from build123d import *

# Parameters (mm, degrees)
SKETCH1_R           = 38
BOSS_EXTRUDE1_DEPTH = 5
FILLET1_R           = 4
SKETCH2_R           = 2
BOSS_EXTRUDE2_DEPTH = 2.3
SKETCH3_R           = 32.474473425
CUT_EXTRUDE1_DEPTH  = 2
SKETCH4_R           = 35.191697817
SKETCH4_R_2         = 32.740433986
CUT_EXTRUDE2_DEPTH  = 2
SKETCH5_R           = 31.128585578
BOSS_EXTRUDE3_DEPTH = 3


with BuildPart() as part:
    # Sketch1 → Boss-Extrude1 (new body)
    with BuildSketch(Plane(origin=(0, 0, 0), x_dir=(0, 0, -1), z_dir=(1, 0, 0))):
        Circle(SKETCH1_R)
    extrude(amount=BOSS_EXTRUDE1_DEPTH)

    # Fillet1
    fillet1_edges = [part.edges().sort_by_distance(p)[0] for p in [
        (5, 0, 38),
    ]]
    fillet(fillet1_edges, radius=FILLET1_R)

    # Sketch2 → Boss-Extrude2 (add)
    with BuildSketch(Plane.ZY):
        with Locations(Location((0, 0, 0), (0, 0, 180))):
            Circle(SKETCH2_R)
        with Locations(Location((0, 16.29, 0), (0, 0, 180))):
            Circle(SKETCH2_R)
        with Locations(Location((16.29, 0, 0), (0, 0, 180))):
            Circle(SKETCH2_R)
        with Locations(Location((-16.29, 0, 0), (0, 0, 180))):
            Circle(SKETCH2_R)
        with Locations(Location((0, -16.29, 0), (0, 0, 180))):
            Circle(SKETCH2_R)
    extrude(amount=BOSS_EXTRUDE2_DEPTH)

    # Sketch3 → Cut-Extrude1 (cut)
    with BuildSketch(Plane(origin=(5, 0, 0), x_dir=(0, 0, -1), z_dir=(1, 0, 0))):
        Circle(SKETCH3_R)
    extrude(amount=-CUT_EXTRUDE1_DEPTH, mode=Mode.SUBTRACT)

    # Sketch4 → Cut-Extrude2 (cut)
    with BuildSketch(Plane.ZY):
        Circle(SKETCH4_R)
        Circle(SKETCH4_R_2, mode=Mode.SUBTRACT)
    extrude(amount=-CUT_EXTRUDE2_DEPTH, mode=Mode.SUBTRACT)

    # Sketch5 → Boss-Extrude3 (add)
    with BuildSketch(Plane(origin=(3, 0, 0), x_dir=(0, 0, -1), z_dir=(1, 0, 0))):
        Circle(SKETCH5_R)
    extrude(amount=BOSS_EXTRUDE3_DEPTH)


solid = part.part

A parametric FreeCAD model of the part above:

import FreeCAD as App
import Part
import Sketcher
from FreeCAD import Vector


def edges_at(feature, points):
    """Names of the edges that pass closest to the given points."""
    edges = feature.Shape.Edges
    near = lambda p: min(range(len(edges)), key=lambda i: edges[i].distToShape(Part.Vertex(*p))[0])
    return sorted({f"Edge{near(p) + 1}" for p in points})

doc = App.newDocument("Part")
body = doc.addObject("PartDesign::Body", "Body")

sketch1 = body.newObject("Sketcher::SketchObject", "Sketch")
sketch1.AttachmentSupport = (doc.getObject("YZ_Plane"), [""])
sketch1.MapMode = "FlatFace"
sketch1.addGeometry(Part.Circle(Vector(0, 0, 0), Vector(0, 0, 1), 38), False)
sketch1.addConstraint(Sketcher.Constraint("Coincident", 0, 3, -1, 1))
sketch1.addConstraint(Sketcher.Constraint("Diameter", 0, 76.0))
pad1 = body.newObject("PartDesign::Pad", "Pad")
pad1.Profile = sketch1
pad1.Length = 5
doc.recompute()

fillet = body.newObject("PartDesign::Fillet", "Fillet")
fillet.Base = (pad1, edges_at(pad1, [(5, 0, 38)]))
fillet.Radius = 4

sketch2 = body.newObject("Sketcher::SketchObject", "Sketch001")
sketch2.AttachmentSupport = (doc.getObject("YZ_Plane"), [""])
sketch2.MapMode = "FlatFace"
sketch2.addGeometry(Part.Circle(Vector(0, 0, 0), Vector(0, 0, 1), 2), False)
sketch2.addGeometry(Part.Circle(Vector(16.3, 0, 0), Vector(0, 0, 1), 2), False)
sketch2.addGeometry(Part.Circle(Vector(0, 16.3, 0), Vector(0, 0, 1), 2), False)
sketch2.addGeometry(Part.Circle(Vector(0, -16.3, 0), Vector(0, 0, 1), 2), False)
sketch2.addGeometry(Part.Circle(Vector(-16.3, 0, 0), Vector(0, 0, 1), 2), False)
sketch2.addConstraint(Sketcher.Constraint("Coincident", 0, 3, -1, 1))
sketch2.addConstraint(Sketcher.Constraint("Equal", 0, 1))
sketch2.addConstraint(Sketcher.Constraint("Equal", 1, 2))
sketch2.addConstraint(Sketcher.Constraint("Equal", 2, 3))
sketch2.addConstraint(Sketcher.Constraint("Equal", 3, 4))
sketch2.addConstraint(Sketcher.Constraint("Symmetric", 2, 3, 3, 3, -1, 1))
sketch2.addConstraint(Sketcher.Constraint("Symmetric", 1, 3, 4, 3, -1, 1))
sketch2.addConstraint(Sketcher.Constraint("PointOnObject", 1, 3, -1))
sketch2.addConstraint(Sketcher.Constraint("PointOnObject", 2, 3, -2))
sketch2.addConstraint(Sketcher.Constraint("Diameter", 0, 4.0))
sketch2.addConstraint(Sketcher.Constraint("DistanceX", -1, 1, 1, 3, 16.29))
sketch2.addConstraint(Sketcher.Constraint("DistanceY", -1, 1, 2, 3, 16.29))
pad2 = body.newObject("PartDesign::Pad", "Pad001")
pad2.Profile = sketch2
pad2.Length = 2.3
pad2.Reversed = True

sketch3 = body.newObject("Sketcher::SketchObject", "Sketch002")
sketch3.AttachmentSupport = (doc.getObject("YZ_Plane"), [""])
sketch3.MapMode = "FlatFace"
sketch3.AttachmentOffset = App.Placement(Vector(0, 0, 5), App.Rotation())
sketch3.addGeometry(Part.Circle(Vector(0, 0, 0), Vector(0, 0, 1), 32), False)
sketch3.addConstraint(Sketcher.Constraint("Coincident", 0, 3, -1, 1))
sketch3.addConstraint(Sketcher.Constraint("Diameter", 0, 64.948947))
pocket1 = body.newObject("PartDesign::Pocket", "Pocket")
pocket1.Profile = sketch3
pocket1.Length = 2

sketch4 = body.newObject("Sketcher::SketchObject", "Sketch003")
sketch4.AttachmentSupport = (doc.getObject("YZ_Plane"), [""])
sketch4.MapMode = "FlatFace"
sketch4.addGeometry(Part.Circle(Vector(0, 0, 0), Vector(0, 0, 1), 35), False)
sketch4.addGeometry(Part.Circle(Vector(0, 0, 0), Vector(0, 0, 1), 33), False)
sketch4.addConstraint(Sketcher.Constraint("Coincident", 0, 3, -1, 1))
sketch4.addConstraint(Sketcher.Constraint("Coincident", 1, 3, -1, 1))
sketch4.addConstraint(Sketcher.Constraint("Diameter", 0, 70.383396))
sketch4.addConstraint(Sketcher.Constraint("Diameter", 1, 65.480868))
pocket2 = body.newObject("PartDesign::Pocket", "Pocket001")
pocket2.Profile = sketch4
pocket2.Length = 2
pocket2.Reversed = True

sketch5 = body.newObject("Sketcher::SketchObject", "Sketch004")
sketch5.AttachmentSupport = (doc.getObject("YZ_Plane"), [""])
sketch5.MapMode = "FlatFace"
sketch5.AttachmentOffset = App.Placement(Vector(0, 0, 3), App.Rotation())
sketch5.addGeometry(Part.Circle(Vector(0, 0, 0), Vector(0, 0, 1), 31), False)
sketch5.addConstraint(Sketcher.Constraint("Coincident", 0, 3, -1, 1))
sketch5.addConstraint(Sketcher.Constraint("Diameter", 0, 62.257171))
pad3 = body.newObject("PartDesign::Pad", "Pad002")
pad3.Profile = sketch5
pad3.Length = 3

doc.recompute()
